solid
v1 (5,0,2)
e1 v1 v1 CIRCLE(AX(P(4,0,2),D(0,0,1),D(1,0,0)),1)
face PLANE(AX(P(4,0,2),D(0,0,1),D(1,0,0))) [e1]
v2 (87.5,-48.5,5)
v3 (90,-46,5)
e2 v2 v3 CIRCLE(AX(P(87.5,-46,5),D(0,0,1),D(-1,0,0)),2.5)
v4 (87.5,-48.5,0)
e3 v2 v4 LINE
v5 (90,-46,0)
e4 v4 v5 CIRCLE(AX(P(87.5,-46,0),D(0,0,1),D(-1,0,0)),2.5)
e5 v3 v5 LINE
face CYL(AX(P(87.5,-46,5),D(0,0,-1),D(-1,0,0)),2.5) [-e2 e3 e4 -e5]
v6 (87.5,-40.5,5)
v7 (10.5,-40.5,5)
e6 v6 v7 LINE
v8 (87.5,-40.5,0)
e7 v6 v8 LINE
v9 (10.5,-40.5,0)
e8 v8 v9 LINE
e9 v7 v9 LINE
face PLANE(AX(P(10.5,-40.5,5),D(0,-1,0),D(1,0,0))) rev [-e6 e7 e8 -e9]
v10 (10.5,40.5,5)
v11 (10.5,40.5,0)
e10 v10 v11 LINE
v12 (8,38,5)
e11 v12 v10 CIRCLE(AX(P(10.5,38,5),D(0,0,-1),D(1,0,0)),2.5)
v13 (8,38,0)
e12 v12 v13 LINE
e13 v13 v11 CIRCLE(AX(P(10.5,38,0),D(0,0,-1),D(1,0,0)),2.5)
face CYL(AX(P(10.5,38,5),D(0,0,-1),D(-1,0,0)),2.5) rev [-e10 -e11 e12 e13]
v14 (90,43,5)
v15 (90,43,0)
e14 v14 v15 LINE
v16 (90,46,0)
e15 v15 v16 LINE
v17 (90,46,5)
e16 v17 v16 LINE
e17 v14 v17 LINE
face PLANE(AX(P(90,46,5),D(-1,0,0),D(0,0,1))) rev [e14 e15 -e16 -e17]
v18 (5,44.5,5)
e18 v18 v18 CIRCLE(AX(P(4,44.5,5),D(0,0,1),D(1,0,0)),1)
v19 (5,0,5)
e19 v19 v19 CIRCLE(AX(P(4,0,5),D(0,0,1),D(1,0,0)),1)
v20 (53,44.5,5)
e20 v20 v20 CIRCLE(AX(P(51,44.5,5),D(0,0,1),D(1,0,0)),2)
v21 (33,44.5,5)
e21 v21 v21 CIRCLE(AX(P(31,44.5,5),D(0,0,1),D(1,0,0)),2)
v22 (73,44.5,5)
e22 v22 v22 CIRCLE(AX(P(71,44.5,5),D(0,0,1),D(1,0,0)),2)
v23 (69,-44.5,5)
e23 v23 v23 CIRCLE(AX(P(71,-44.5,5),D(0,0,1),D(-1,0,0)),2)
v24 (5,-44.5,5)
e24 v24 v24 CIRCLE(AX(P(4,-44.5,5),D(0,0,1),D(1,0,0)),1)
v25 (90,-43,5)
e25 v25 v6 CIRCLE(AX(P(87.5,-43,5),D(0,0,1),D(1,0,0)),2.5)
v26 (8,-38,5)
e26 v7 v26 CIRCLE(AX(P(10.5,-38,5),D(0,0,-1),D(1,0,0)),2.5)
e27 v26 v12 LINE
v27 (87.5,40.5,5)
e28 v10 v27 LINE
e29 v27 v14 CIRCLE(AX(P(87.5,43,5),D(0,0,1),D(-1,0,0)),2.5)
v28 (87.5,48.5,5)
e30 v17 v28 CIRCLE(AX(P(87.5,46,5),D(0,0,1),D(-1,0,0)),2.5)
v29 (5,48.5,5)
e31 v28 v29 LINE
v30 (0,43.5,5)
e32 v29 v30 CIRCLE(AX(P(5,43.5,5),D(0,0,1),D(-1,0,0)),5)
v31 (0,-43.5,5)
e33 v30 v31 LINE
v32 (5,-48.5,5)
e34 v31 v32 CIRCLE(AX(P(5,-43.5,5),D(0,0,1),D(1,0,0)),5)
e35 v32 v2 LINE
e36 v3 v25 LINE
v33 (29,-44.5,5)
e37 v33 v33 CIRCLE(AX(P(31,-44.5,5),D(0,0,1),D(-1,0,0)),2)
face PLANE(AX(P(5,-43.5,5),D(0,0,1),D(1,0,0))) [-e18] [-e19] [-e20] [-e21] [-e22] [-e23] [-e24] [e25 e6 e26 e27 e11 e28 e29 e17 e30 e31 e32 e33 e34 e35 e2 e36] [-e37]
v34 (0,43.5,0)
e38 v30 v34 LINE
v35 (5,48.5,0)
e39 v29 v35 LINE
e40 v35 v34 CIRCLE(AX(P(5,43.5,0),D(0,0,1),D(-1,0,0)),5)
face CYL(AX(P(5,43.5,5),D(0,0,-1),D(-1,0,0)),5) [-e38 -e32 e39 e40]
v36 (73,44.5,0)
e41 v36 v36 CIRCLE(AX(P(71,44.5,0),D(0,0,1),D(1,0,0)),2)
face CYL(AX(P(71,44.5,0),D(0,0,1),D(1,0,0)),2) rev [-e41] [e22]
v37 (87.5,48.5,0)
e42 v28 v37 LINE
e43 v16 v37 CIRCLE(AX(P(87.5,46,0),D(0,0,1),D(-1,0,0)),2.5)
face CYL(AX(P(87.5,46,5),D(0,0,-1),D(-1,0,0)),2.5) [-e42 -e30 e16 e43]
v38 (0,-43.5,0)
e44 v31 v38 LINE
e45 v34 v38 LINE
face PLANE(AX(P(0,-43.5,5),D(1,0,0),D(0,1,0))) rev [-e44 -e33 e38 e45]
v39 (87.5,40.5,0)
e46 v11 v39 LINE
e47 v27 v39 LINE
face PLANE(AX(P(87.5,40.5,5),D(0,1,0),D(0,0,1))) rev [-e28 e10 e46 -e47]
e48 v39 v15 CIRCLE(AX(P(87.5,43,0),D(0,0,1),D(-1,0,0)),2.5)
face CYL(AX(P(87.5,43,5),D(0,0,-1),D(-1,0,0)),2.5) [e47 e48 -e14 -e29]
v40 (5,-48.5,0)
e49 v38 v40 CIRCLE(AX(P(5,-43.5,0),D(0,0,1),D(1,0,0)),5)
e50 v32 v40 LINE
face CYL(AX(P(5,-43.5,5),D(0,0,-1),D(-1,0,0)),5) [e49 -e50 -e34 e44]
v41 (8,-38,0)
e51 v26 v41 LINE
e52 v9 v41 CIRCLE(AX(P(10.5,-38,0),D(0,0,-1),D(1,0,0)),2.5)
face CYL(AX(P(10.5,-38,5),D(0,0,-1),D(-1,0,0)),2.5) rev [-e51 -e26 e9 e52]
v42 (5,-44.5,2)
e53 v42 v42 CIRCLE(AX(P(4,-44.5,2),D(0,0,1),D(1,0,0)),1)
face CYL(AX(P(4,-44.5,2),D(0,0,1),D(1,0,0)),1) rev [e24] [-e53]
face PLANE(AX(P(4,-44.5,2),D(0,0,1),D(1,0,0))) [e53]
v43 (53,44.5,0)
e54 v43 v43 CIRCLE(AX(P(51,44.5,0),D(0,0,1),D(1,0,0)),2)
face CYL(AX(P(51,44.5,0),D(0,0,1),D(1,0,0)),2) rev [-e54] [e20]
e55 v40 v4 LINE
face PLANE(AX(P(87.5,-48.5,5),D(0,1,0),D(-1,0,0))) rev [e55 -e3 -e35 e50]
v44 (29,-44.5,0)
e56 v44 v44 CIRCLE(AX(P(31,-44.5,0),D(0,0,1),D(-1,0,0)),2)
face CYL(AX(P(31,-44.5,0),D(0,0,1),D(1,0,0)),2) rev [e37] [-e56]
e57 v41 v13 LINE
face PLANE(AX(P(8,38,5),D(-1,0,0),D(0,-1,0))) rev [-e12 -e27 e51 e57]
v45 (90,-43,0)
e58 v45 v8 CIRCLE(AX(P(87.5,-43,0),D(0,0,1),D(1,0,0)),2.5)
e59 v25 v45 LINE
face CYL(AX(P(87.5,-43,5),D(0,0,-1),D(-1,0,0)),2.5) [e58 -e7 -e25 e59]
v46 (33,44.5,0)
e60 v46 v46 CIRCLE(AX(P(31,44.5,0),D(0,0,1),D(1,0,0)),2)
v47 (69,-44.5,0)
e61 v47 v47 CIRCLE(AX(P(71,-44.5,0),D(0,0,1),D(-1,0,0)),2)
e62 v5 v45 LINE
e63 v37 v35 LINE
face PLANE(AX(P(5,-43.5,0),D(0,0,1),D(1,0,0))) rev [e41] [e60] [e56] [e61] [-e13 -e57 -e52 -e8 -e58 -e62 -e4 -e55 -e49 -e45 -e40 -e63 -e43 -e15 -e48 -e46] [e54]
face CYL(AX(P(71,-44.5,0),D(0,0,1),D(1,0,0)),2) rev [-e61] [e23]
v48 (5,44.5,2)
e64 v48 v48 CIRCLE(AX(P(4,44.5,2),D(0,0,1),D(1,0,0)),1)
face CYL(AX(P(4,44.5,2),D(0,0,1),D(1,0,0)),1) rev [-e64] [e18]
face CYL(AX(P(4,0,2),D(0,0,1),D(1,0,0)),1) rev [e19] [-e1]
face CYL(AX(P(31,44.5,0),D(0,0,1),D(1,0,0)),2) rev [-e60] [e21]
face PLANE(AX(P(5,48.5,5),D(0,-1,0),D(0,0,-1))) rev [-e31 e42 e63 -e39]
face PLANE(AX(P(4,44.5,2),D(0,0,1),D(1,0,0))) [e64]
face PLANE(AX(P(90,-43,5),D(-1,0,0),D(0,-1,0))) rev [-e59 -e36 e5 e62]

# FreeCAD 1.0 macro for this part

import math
import FreeCAD as App
import Part
import Sketcher

V = App.Vector
Q = App.Units.Quantity

doc = App.newDocument("Part")
body = doc.addObject("PartDesign::Body", "Body")

# Sketch on XY plane
sketch1 = body.newObject("Sketcher::SketchObject", "Sketch")
sketch1.AttachmentSupport = (doc.getObject("XY_Plane"), [""])
sketch1.MapMode = "FlatFace"
sketch1.addGeometry(Part.LineSegment(V(0, 43.5, 0), V(0, -43.5, 0)), False)
sketch1.addGeometry(Part.ArcOfCircle(Part.Circle(V(5, -43.5, 0), V(0, 0, 1), 5), math.radians(180), math.radians(270)), False)
sketch1.addGeometry(Part.LineSegment(V(5, -48.5, 0), V(87.5, -48.5, 0)), False)
sketch1.addGeometry(Part.ArcOfCircle(Part.Circle(V(87.5, -46, 0), V(0, 0, 1), 2.5), math.radians(-90), math.radians(0)), False)
sketch1.addGeometry(Part.LineSegment(V(90, -46, 0), V(90, -43, 0)), False)
sketch1.addGeometry(Part.ArcOfCircle(Part.Circle(V(87.5, -43, 0), V(0, 0, 1), 2.5), math.radians(0), math.radians(90)), False)
sketch1.addGeometry(Part.LineSegment(V(87.5, -40.5, 0), V(10.5, -40.5, 0)), False)
sketch1.addGeometry(Part.ArcOfCircle(Part.Circle(V(10.5, -38, 0), V(0, 0, 1), 2.5), math.radians(180), math.radians(270)), False)
sketch1.addGeometry(Part.LineSegment(V(8, -38, 0), V(8, 38, 0)), False)
sketch1.addGeometry(Part.ArcOfCircle(Part.Circle(V(10.5, 38, 0), V(0, 0, 1), 2.5), math.radians(90), math.radians(180)), False)
sketch1.addGeometry(Part.LineSegment(V(10.5, 40.5, 0), V(87.5, 40.5, 0)), False)
sketch1.addGeometry(Part.ArcOfCircle(Part.Circle(V(87.5, 43, 0), V(0, 0, 1), 2.5), math.radians(-90), math.radians(0)), False)
sketch1.addGeometry(Part.LineSegment(V(90, 43, 0), V(90, 46, 0)), False)
sketch1.addGeometry(Part.ArcOfCircle(Part.Circle(V(87.5, 46, 0), V(0, 0, 1), 2.5), math.radians(0), math.radians(90)), False)
sketch1.addGeometry(Part.LineSegment(V(87.5, 48.5, 0), V(5, 48.5, 0)), False)
sketch1.addGeometry(Part.ArcOfCircle(Part.Circle(V(5, 43.5, 0), V(0, 0, 1), 5), math.radians(90), math.radians(180)), False)
sketch1.addConstraint(Sketcher.Constraint("Tangent", 0, 2, 1, 1))
sketch1.addConstraint(Sketcher.Constraint("Tangent", 1, 2, 2, 1))
sketch1.addConstraint(Sketcher.Constraint("Tangent", 2, 2, 3, 1))
sketch1.addConstraint(Sketcher.Constraint("Tangent", 3, 2, 4, 1))
sketch1.addConstraint(Sketcher.Constraint("Tangent", 4, 2, 5, 1))
sketch1.addConstraint(Sketcher.Constraint("Tangent", 5, 2, 6, 1))
sketch1.addConstraint(Sketcher.Constraint("Tangent", 6, 2, 7, 2))
sketch1.addConstraint(Sketcher.Constraint("Tangent", 7, 1, 8, 1))
sketch1.addConstraint(Sketcher.Constraint("Tangent", 8, 2, 9, 2))
sketch1.addConstraint(Sketcher.Constraint("Tangent", 9, 1, 10, 1))
sketch1.addConstraint(Sketcher.Constraint("Tangent", 10, 2, 11, 1))
sketch1.addConstraint(Sketcher.Constraint("Tangent", 11, 2, 12, 1))
sketch1.addConstraint(Sketcher.Constraint("Tangent", 12, 2, 13, 1))
sketch1.addConstraint(Sketcher.Constraint("Tangent", 13, 2, 14, 1))
sketch1.addConstraint(Sketcher.Constraint("Tangent", 14, 2, 15, 1))
sketch1.addConstraint(Sketcher.Constraint("Tangent", 15, 2, 0, 1))
sketch1.addConstraint(Sketcher.Constraint("Vertical", 0))
sketch1.addConstraint(Sketcher.Constraint("Horizontal", 2))
sketch1.addConstraint(Sketcher.Constraint("Vertical", 4))
sketch1.addConstraint(Sketcher.Constraint("Horizontal", 6))
sketch1.addConstraint(Sketcher.Constraint("Vertical", 8))
sketch1.addConstraint(Sketcher.Constraint("Horizontal", 10))
sketch1.addConstraint(Sketcher.Constraint("Vertical", 12))
sketch1.addConstraint(Sketcher.Constraint("Horizontal", 14))
sketch1.addConstraint(Sketcher.Constraint("Equal", 3, 5))
sketch1.addConstraint(Sketcher.Constraint("Equal", 5, 7))
sketch1.addConstraint(Sketcher.Constraint("Equal", 7, 9))
sketch1.addConstraint(Sketcher.Constraint("Equal", 9, 11))
sketch1.addConstraint(Sketcher.Constraint("Equal", 11, 13))
sketch1.addConstraint(Sketcher.Constraint("Equal", 1, 15))
sketch1.addConstraint(Sketcher.Constraint("Symmetric", 0, 2, 15, 2, -1, 1))
sketch1.addConstraint(Sketcher.Constraint("Symmetric", 5, 3, 11, 3, -1))
sketch1.addConstraint(Sketcher.Constraint("Radius", 1, Q("5 mm")))
sketch1.addConstraint(Sketcher.Constraint("Radius", 3, Q("2.5 mm")))
sketch1.addConstraint(Sketcher.Constraint("DistanceX", 6, 2, 6, 1, Q("77 mm")))
sketch1.addConstraint(Sketcher.Constraint("DistanceY", 0, 2, 0, 1, Q("87 mm")))
sketch1.addConstraint(Sketcher.Constraint("DistanceY", 4, 1, 4, 2, Q("3 mm")))
sketch1.addConstraint(Sketcher.Constraint("DistanceX", 2, 1, 2, 2, Q("82.5 mm")))
pad1 = body.newObject("PartDesign::Pad", "Pad")
pad1.Profile = sketch1
pad1.Length = 5

# Sketch on XY plane
sketch2 = body.newObject("Sketcher::SketchObject", "Sketch001")
sketch2.AttachmentSupport = (doc.getObject("XY_Plane"), [""])
sketch2.MapMode = "FlatFace"
sketch2.AttachmentOffset = App.Placement(V(0, 0, 5), App.Rotation())
sketch2.addGeometry(Part.Circle(V(71, 44.5, 0), V(0, 0, 1), 2), False)
sketch2.addGeometry(Part.Circle(V(31, 44.5, 0), V(0, 0, 1), 2), False)
sketch2.addGeometry(Part.Circle(V(71, -44.5, 0), V(0, 0, 1), 2), False)
sketch2.addGeometry(Part.Circle(V(31, -44.5, 0), V(0, 0, 1), 2), False)
sketch2.addGeometry(Part.Circle(V(51, 44.5, 0), V(0, 0, 1), 2), False)
sketch2.addConstraint(Sketcher.Constraint("Equal", 0, 1))
sketch2.addConstraint(Sketcher.Constraint("Equal", 1, 2))
sketch2.addConstraint(Sketcher.Constraint("Equal", 2, 3))
sketch2.addConstraint(Sketcher.Constraint("Equal", 3, 4))
sketch2.addConstraint(Sketcher.Constraint("Symmetric", 0, 3, 2, 3, -1))
sketch2.addConstraint(Sketcher.Constraint("Symmetric", 1, 3, 3, 3, -1))
sketch2.addConstraint(Sketcher.Constraint("Horizontal", 0, 3, 1, 3))
sketch2.addConstraint(Sketcher.Constraint("Horizontal", 1, 3, 4, 3))
sketch2.addConstraint(Sketcher.Constraint("Diameter", 0, Q("4 mm")))
sketch2.addConstraint(Sketcher.Constraint("DistanceX", -1, 1, 0, 3, Q("71 mm")))
sketch2.addConstraint(Sketcher.Constraint("DistanceX", -1, 1, 1, 3, Q("31 mm")))
sketch2.addConstraint(Sketcher.Constraint("DistanceX", -1, 1, 4, 3, Q("51 mm")))
sketch2.addConstraint(Sketcher.Constraint("DistanceY", 2, 3, 0, 3, Q("89 mm")))
pocket1 = body.newObject("PartDesign::Pocket", "Pocket")
pocket1.Profile = sketch2
pocket1.Type = "ThroughAll"

# Sketch on XY plane
sketch3 = body.newObject("Sketcher::SketchObject", "Sketch002")
sketch3.AttachmentSupport = (doc.getObject("XY_Plane"), [""])
sketch3.MapMode = "FlatFace"
sketch3.AttachmentOffset = App.Placement(V(0, 0, 5), App.Rotation())
sketch3.addGeometry(Part.Circle(V(4, 44.5, 0), V(0, 0, 1), 1), False)
sketch3.addGeometry(Part.Circle(V(4, 0, 0), V(0, 0, 1), 1), False)
sketch3.addGeometry(Part.Circle(V(4, -44.5, 0), V(0, 0, 1), 1), False)
sketch3.addConstraint(Sketcher.Constraint("Equal", 0, 1))
sketch3.addConstraint(Sketcher.Constraint("Equal", 1, 2))
sketch3.addConstraint(Sketcher.Constraint("Symmetric", 0, 3, 2, 3, -1))
sketch3.addConstraint(Sketcher.Constraint("PointOnObject", 1, 3, -1))
sketch3.addConstraint(Sketcher.Constraint("Vertical", 0, 3, 1, 3))
sketch3.addConstraint(Sketcher.Constraint("Diameter", 0, Q("2 mm")))
sketch3.addConstraint(Sketcher.Constraint("DistanceX", -1, 1, 0, 3, Q("4 mm")))
sketch3.addConstraint(Sketcher.Constraint("DistanceY", 2, 3, 0, 3, Q("89 mm")))
pocket2 = body.newObject("PartDesign::Pocket", "Pocket001")
pocket2.Profile = sketch3
pocket2.Length = 3

doc.recompute()
